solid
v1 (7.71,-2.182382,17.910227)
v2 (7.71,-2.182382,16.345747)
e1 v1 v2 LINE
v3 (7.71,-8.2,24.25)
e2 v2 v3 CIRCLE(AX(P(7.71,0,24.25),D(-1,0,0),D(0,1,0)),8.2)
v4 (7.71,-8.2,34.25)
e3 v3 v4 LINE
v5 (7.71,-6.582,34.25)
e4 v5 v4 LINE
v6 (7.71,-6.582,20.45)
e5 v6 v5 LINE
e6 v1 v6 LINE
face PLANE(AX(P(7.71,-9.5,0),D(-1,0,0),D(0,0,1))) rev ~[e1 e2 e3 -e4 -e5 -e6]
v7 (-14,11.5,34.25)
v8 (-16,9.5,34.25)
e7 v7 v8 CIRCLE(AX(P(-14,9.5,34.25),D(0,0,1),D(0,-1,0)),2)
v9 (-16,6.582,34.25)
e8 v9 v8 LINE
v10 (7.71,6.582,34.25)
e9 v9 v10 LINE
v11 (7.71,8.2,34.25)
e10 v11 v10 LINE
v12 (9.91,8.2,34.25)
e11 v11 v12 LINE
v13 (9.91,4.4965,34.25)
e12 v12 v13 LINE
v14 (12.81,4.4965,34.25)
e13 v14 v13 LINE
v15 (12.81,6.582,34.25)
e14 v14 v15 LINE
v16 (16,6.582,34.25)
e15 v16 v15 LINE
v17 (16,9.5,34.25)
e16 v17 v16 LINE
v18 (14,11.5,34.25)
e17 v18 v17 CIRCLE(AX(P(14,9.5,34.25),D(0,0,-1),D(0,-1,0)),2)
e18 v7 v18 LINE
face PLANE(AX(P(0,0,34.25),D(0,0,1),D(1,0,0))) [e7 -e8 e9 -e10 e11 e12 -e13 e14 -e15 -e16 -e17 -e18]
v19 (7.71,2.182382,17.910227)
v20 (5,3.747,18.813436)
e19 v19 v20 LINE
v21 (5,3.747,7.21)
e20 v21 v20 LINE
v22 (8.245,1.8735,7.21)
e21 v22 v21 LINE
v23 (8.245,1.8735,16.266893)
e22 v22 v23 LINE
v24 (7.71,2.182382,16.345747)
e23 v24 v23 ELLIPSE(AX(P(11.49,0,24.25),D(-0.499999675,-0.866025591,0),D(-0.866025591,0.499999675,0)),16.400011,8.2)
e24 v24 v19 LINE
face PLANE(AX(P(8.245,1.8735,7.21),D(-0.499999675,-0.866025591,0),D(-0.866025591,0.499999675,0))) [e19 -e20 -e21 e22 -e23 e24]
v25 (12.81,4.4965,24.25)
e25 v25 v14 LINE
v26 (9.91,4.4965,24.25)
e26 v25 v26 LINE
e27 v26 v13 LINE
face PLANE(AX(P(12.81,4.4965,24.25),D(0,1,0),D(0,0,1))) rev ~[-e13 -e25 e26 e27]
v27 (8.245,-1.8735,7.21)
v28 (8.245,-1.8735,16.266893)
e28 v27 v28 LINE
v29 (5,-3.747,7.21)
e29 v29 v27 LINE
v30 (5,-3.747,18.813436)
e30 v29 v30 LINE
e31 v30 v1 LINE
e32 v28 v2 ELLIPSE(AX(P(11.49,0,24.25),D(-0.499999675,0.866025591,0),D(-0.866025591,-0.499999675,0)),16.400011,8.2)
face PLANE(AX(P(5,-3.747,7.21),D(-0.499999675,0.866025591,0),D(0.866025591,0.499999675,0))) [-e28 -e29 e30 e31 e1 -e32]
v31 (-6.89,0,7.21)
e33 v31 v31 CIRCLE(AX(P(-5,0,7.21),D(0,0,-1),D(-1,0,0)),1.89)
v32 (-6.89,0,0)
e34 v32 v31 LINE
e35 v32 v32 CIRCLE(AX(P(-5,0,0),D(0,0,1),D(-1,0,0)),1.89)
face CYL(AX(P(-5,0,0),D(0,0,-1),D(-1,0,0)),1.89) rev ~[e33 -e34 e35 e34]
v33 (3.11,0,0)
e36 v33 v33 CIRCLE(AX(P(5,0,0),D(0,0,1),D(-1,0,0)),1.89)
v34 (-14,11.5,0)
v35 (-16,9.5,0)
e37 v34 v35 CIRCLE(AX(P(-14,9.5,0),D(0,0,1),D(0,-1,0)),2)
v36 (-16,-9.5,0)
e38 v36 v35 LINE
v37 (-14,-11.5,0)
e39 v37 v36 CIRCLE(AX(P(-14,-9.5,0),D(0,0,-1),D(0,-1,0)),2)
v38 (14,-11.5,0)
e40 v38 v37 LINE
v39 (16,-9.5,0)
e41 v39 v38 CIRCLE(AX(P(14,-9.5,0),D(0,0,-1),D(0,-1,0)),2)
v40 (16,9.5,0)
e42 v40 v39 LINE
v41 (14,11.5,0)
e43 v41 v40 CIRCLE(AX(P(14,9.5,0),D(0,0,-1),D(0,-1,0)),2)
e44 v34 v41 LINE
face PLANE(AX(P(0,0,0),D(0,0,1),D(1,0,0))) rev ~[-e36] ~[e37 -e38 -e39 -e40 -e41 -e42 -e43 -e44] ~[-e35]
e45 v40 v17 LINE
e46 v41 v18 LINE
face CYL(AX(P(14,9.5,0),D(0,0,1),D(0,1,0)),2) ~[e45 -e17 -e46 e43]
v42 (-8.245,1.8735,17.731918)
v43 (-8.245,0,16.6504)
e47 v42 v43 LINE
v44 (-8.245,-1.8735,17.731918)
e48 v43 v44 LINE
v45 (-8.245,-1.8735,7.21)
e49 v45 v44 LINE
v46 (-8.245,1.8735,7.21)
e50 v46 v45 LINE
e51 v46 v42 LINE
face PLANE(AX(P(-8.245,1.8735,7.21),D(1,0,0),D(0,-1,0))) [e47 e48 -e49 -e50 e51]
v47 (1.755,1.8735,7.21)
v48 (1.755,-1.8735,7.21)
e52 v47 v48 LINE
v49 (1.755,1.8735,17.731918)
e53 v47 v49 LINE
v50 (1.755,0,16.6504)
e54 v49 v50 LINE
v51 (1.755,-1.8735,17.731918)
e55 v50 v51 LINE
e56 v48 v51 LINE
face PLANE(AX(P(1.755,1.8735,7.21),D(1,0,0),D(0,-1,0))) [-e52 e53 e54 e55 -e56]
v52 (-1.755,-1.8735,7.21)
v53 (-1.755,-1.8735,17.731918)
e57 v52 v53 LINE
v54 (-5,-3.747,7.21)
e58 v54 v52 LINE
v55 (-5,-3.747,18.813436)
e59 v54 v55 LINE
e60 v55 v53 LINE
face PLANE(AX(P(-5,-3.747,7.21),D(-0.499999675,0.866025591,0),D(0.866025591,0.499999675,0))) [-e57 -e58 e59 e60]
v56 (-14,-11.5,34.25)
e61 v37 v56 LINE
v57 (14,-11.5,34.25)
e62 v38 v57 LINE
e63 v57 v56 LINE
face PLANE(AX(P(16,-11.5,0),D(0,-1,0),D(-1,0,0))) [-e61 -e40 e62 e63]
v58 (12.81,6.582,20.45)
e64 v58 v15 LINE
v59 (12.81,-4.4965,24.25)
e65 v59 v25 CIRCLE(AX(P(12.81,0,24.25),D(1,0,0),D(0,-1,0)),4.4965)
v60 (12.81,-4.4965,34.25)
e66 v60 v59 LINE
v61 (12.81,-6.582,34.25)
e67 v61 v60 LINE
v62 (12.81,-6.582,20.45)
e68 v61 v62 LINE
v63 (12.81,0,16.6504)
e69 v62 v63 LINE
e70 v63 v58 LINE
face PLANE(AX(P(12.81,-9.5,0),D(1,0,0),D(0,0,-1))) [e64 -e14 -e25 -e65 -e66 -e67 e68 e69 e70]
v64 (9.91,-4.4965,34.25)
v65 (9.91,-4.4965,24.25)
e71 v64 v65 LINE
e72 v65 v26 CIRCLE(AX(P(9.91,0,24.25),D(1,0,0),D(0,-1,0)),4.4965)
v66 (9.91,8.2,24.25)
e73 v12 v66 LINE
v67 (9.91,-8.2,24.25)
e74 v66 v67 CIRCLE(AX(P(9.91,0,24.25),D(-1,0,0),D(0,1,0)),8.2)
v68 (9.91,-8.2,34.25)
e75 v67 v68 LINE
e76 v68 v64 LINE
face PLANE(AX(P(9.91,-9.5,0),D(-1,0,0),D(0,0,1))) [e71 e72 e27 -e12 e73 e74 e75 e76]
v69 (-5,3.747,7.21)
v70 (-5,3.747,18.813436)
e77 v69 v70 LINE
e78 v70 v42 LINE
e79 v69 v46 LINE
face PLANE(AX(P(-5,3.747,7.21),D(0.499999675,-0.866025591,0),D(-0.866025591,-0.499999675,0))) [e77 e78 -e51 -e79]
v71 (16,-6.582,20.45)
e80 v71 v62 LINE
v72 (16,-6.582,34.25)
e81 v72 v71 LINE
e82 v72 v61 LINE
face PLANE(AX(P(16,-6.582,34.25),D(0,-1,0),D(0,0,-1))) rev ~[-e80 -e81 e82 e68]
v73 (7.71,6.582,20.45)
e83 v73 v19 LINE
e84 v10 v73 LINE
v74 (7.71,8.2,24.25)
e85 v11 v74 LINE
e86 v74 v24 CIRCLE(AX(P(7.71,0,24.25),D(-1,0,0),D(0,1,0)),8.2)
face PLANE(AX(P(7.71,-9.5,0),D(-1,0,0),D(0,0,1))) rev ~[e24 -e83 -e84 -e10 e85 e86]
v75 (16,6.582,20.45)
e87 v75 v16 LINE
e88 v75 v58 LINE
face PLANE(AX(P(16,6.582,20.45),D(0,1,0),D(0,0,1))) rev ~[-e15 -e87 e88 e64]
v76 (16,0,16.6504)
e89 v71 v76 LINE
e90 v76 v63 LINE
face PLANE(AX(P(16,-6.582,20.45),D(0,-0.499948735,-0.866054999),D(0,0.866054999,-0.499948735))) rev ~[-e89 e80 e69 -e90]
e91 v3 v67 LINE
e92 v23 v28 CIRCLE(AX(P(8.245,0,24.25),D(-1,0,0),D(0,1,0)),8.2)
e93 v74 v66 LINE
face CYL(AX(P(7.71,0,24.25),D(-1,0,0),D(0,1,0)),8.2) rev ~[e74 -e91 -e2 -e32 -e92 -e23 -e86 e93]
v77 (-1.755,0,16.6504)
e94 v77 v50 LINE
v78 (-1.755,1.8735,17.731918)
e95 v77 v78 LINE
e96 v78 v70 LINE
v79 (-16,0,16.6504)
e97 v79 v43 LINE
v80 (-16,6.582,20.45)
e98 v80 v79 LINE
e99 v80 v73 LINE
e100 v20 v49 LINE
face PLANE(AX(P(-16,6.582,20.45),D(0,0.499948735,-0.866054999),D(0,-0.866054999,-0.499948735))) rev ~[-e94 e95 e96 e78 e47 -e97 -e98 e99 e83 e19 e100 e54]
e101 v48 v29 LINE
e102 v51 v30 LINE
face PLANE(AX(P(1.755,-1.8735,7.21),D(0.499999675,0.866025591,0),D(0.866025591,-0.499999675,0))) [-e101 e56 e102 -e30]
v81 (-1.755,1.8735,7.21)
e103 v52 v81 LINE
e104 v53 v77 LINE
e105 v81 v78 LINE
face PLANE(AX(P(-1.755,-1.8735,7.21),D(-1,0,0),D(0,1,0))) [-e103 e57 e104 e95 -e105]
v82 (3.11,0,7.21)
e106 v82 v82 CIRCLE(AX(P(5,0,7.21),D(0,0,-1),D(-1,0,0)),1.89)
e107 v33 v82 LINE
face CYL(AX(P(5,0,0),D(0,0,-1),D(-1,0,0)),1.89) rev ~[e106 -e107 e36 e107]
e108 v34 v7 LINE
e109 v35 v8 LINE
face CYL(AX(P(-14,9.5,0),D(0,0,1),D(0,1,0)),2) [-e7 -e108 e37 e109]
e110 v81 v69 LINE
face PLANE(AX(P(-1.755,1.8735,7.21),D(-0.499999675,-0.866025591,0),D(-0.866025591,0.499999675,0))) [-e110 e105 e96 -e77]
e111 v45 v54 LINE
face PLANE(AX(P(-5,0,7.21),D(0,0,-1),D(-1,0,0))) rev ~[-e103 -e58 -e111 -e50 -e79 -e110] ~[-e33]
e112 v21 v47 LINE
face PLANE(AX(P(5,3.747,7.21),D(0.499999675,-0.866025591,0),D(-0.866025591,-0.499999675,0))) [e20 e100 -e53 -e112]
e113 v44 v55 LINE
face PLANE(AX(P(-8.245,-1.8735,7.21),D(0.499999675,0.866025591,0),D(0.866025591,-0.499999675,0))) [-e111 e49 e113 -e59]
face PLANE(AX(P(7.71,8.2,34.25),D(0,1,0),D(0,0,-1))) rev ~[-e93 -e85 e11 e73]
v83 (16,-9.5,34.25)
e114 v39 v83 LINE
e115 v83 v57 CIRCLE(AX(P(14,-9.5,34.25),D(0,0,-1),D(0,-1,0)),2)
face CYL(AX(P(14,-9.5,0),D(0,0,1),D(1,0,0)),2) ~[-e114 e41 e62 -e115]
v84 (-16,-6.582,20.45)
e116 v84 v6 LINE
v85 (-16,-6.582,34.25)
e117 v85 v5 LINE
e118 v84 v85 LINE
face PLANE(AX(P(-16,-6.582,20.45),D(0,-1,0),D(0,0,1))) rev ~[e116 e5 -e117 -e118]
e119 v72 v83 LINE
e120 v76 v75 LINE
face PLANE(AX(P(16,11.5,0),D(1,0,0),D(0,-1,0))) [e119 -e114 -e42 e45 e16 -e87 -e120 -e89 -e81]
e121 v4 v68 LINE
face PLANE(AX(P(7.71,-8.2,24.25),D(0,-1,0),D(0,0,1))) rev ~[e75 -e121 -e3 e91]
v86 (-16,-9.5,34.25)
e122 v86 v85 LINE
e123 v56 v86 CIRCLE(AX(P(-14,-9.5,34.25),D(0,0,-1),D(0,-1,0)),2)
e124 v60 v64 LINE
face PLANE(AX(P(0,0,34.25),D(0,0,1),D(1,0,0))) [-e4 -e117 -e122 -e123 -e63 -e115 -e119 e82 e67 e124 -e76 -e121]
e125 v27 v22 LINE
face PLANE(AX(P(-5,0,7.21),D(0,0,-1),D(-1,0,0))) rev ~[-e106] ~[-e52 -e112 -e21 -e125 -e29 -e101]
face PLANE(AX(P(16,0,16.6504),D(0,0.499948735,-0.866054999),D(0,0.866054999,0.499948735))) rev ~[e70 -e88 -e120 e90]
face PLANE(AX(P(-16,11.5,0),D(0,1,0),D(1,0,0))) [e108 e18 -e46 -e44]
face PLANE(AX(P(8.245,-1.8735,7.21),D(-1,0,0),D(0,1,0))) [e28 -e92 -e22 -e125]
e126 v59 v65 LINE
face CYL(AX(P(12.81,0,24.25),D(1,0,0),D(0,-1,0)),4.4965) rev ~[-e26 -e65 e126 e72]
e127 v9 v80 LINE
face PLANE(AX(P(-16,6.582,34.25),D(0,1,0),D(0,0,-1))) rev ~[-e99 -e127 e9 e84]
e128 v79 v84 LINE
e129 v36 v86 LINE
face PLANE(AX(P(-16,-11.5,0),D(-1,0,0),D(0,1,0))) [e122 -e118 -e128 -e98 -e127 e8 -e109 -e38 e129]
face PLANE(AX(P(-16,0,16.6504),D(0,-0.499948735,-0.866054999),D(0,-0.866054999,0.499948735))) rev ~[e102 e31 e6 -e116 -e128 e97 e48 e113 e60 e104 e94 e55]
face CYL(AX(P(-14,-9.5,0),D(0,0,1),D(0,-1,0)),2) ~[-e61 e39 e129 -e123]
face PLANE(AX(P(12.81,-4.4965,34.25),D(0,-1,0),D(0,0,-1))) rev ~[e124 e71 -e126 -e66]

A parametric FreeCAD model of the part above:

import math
import FreeCAD as App
import Part
import Sketcher
Q = App.Units.Quantity


def edges_at(feature, points):
    """Names of the edges that pass closest to the given points."""
    edges = feature.Shape.Edges
    near = lambda p: min(range(len(edges)), key=lambda i: edges[i].distToShape(Part.Vertex(*p))[0])
    return sorted({f"Edge{near(p) + 1}" for p in points})

doc = App.newDocument("Part")
body = doc.addObject("PartDesign::Body", "Body")

# Sketch on XY plane
sketch1 = doc.addObject("Sketcher::SketchObject", "Sketch")
body.addObject(sketch1)
sketch1.AttachmentSupport = (doc.XY_Plane, [""])
sketch1.MapMode = "FlatFace"
sketch1.addGeometry([
    Part.LineSegment(App.Vector(16, 12, 0), App.Vector(-16, 12, 0)),
    Part.LineSegment(App.Vector(-16, 12, 0), App.Vector(-16, -12, 0)),
    Part.LineSegment(App.Vector(-16, -12, 0), App.Vector(16, -12, 0)),
    Part.LineSegment(App.Vector(16, -12, 0), App.Vector(16, 12, 0)),
], False)
sketch1.addConstraint([
    Sketcher.Constraint("Coincident", 0, 2, 1, 1),
    Sketcher.Constraint("Coincident", 1, 2, 2, 1),
    Sketcher.Constraint("Coincident", 2, 2, 3, 1),
    Sketcher.Constraint("Coincident", 3, 2, 0, 1),
    Sketcher.Constraint("Horizontal", 0),
    Sketcher.Constraint("Vertical", 1),
    Sketcher.Constraint("Horizontal", 2),
    Sketcher.Constraint("Vertical", 3),
    Sketcher.Constraint("Symmetric", 0, 2, 2, 2, -1, 1),
    Sketcher.Constraint("DistanceX", 0, 2, 0, 1, 32.0),
    Sketcher.Constraint("DistanceY", 1, 2, 1, 1, 23.0),
])
pad1 = doc.addObject("PartDesign::Pad", "Pad")
body.addObject(pad1)
pad1.Profile = sketch1
pad1.Length = 34.25
doc.recompute()

fillet = doc.addObject("PartDesign::Fillet", "Fillet")
body.addObject(fillet)
fillet.Base = (pad1, edges_at(pad1, [
    (16, -11.5, 17.125),
    (16, 11.5, 17.125),
    (-16, 11.5, 17.125),
    (-16, -11.5, 17.125),
]))
fillet.Radius = 2

# Sketch on YZ plane
sketch2 = doc.addObject("Sketcher::SketchObject", "Sketch001")
body.addObject(sketch2)
sketch2.AttachmentSupport = (doc.YZ_Plane, [""])
sketch2.MapMode = "FlatFace"
sketch2.AttachmentOffset = App.Placement(App.Vector(0, 0, 16), App.Rotation())
sketch2.addGeometry([
    Part.LineSegment(App.Vector(7, 34, 0), App.Vector(-7, 34, 0)),  # 0
    Part.LineSegment(App.Vector(-7, 34, 0), App.Vector(-7, 20, 0)),  # 1
    Part.LineSegment(App.Vector(-7, 20, 0), App.Vector(0, 17, 0)),  # 2
    Part.LineSegment(App.Vector(0, 17, 0), App.Vector(7, 20, 0)),  # 3
    Part.LineSegment(App.Vector(7, 20, 0), App.Vector(7, 34, 0)),  # 4
], False)
sketch2.addConstraint([
    Sketcher.Constraint("Coincident", 0, 2, 1, 1),
    Sketcher.Constraint("Coincident", 1, 2, 2, 1),
    Sketcher.Constraint("Coincident", 2, 2, 3, 1),
    Sketcher.Constraint("Coincident", 3, 2, 4, 1),
    Sketcher.Constraint("Coincident", 4, 2, 0, 1),
    Sketcher.Constraint("Horizontal", 0),
    Sketcher.Constraint("Vertical", 1),
    Sketcher.Constraint("Vertical", 4),
    Sketcher.Constraint("Symmetric", 1, 2, 3, 2, -2),
    Sketcher.Constraint("PointOnObject", 2, 2, -2),
    Sketcher.Constraint("DistanceY", 1, 2, 1, 1, 13.8),
    Sketcher.Constraint("Distance", 2, 7.6),
    Sketcher.Constraint("DistanceX", 0, 2, 0, 1, 13.164),
    Sketcher.Constraint("DistanceY", -1, 1, 0, 2, 34.25),
])
pocket1 = doc.addObject("PartDesign::Pocket", "Pocket")
body.addObject(pocket1)
pocket1.Profile = sketch2
pocket1.Length = 3.19

# Sketch on YZ plane
sketch3 = doc.addObject("Sketcher::SketchObject", "Sketch002")
body.addObject(sketch3)
sketch3.AttachmentSupport = (doc.YZ_Plane, [""])
sketch3.MapMode = "FlatFace"
sketch3.AttachmentOffset = App.Placement(App.Vector(0, 0, 12.81), App.Rotation())
sketch3.addGeometry([
    Part.LineSegment(App.Vector(4.5, 34.2, 0), App.Vector(-4.5, 34.2, 0)),
    Part.LineSegment(App.Vector(-4.5, 34.2, 0), App.Vector(-4.5, 24.2, 0)),
    Part.ArcOfCircle(Part.Circle(App.Vector(0, 24.2, 0), App.Vector(0, 0, 1), 4.5), math.radians(180), math.radians(360)),
    Part.LineSegment(App.Vector(4.5, 24.2, 0), App.Vector(4.5, 34.2, 0)),
], False)
sketch3.addConstraint([
    Sketcher.Constraint("Coincident", 0, 2, 1, 1),
    Sketcher.Constraint("Tangent", 1, 2, 2, 1),
    Sketcher.Constraint("Tangent", 2, 2, 3, 1),
    Sketcher.Constraint("Coincident", 3, 2, 0, 1),
    Sketcher.Constraint("Horizontal", 0),
    Sketcher.Constraint("Vertical", 1),
    Sketcher.Constraint("Vertical", 3),
    Sketcher.Constraint("PointOnObject", 2, 3, -2),
    Sketcher.Constraint("DistanceY", 1, 2, 1, 1, 10.0),
    Sketcher.Constraint("Radius", 2, 4.4965),
    Sketcher.Constraint("DistanceY", -1, 1, 2, 3, 24.25),
])
pocket2 = doc.addObject("PartDesign::Pocket", "Pocket001")
body.addObject(pocket2)
pocket2.Profile = sketch3
pocket2.Length = 2.9

# Sketch on YZ plane
sketch4 = doc.addObject("Sketcher::SketchObject", "Sketch003")
body.addObject(sketch4)
sketch4.AttachmentSupport = (doc.YZ_Plane, [""])
sketch4.MapMode = "FlatFace"
sketch4.AttachmentOffset = App.Placement(App.Vector(0, 0, -16), App.Rotation())
sketch4.addGeometry([
    Part.LineSegment(App.Vector(-7, 34, 0), App.Vector(7, 34, 0)),  # 0
    Part.LineSegment(App.Vector(7, 34, 0), App.Vector(7, 20, 0)),  # 1
    Part.LineSegment(App.Vector(7, 20, 0), App.Vector(0, 17, 0)),  # 2
    Part.LineSegment(App.Vector(0, 17, 0), App.Vector(-7, 20, 0)),  # 3
    Part.LineSegment(App.Vector(-7, 20, 0), App.Vector(-7, 34, 0)),  # 4
], False)
sketch4.addConstraint([
    Sketcher.Constraint("Coincident", 0, 2, 1, 1),
    Sketcher.Constraint("Coincident", 1, 2, 2, 1),
    Sketcher.Constraint("Coincident", 2, 2, 3, 1),
    Sketcher.Constraint("Coincident", 3, 2, 4, 1),
    Sketcher.Constraint("Coincident", 4, 2, 0, 1),
    Sketcher.Constraint("Horizontal", 0),
    Sketcher.Constraint("Vertical", 1),
    Sketcher.Constraint("Vertical", 4),
    Sketcher.Constraint("Symmetric", 1, 2, 3, 2, -2),
    Sketcher.Constraint("PointOnObject", 2, 2, -2),
    Sketcher.Constraint("DistanceY", 1, 2, 1, 1, 13.8),
    Sketcher.Constraint("Distance", 2, 7.6),
    Sketcher.Constraint("DistanceX", 0, 1, 0, 2, 13.164),
    Sketcher.Constraint("DistanceY", -1, 1, 0, 2, 34.25),
])
pocket3 = doc.addObject("PartDesign::Pocket", "Pocket002")
body.addObject(pocket3)
pocket3.Profile = sketch4
pocket3.Length = 23.71
pocket3.Reversed = True

# Sketch on YZ plane
sketch5 = doc.addObject("Sketcher::SketchObject", "Sketch004")
body.addObject(sketch5)
sketch5.AttachmentSupport = (doc.YZ_Plane, [""])
sketch5.MapMode = "FlatFace"
sketch5.AttachmentOffset = App.Placement(App.Vector(0, 0, 7.71), App.Rotation())
sketch5.addGeometry([
    Part.LineSegment(App.Vector(-8, 34, 0), App.Vector(8, 34, 0)),
    Part.LineSegment(App.Vector(8, 34, 0), App.Vector(8, 24, 0)),
    Part.ArcOfCircle(Part.Circle(App.Vector(0, 24, 0), App.Vector(0, 0, 1), 8), math.radians(180), math.radians(360)),
    Part.LineSegment(App.Vector(-8, 24, 0), App.Vector(-8, 34, 0)),
], False)
sketch5.addConstraint([
    Sketcher.Constraint("Coincident", 0, 2, 1, 1),
    Sketcher.Constraint("Tangent", 1, 2, 2, 2),
    Sketcher.Constraint("Tangent", 2, 1, 3, 1),
    Sketcher.Constraint("Coincident", 3, 2, 0, 1),
    Sketcher.Constraint("Horizontal", 0),
    Sketcher.Constraint("Vertical", 1),
    Sketcher.Constraint("Vertical", 3),
    Sketcher.Constraint("PointOnObject", 2, 3, -2),
    Sketcher.Constraint("Radius", 2, 8.2),
    Sketcher.Constraint("DistanceY", 1, 2, 1, 1, 10.0),
    Sketcher.Constraint("DistanceY", -1, 1, 2, 3, 24.25),
])
pocket4 = doc.addObject("PartDesign::Pocket", "Pocket003")
body.addObject(pocket4)
pocket4.Profile = sketch5
pocket4.Length = 2.2
pocket4.Reversed = True

# Sketch on XY plane
sketch6 = doc.addObject("Sketcher::SketchObject", "Sketch005")
body.addObject(sketch6)
sketch6.AttachmentSupport = (doc.XY_Plane, [""])
sketch6.MapMode = "FlatFace"
sketch6.addGeometry([
    Part.Circle(App.Vector(-5, 0, 0), App.Vector(0, 0, 1), 1.9),
    Part.Circle(App.Vector(5, 0, 0), App.Vector(0, 0, 1), 1.9),
], False)
sketch6.addConstraint([
    Sketcher.Constraint("Equal", 0, 1),
    Sketcher.Constraint("Symmetric", 0, 3, 1, 3, -1, 1),
    Sketcher.Constraint("PointOnObject", 0, 3, -1),
    Sketcher.Constraint("Diameter", 0, 3.78),
    Sketcher.Constraint("DistanceX", 0, 3, 1, 3, 10.0),
])
pocket5 = doc.addObject("PartDesign::Pocket", "Pocket004")
body.addObject(pocket5)
pocket5.Profile = sketch6
pocket5.Length = 7.21
pocket5.Reversed = True

# Sketch on XY plane
sketch7 = doc.addObject("Sketcher::SketchObject", "Sketch006")
body.addObject(sketch7)
sketch7.AttachmentSupport = (doc.XY_Plane, [""])
sketch7.MapMode = "FlatFace"
sketch7.AttachmentOffset = App.Placement(App.Vector(0, 0, 7.21), App.Rotation())
sketch7.addGeometry([
    Part.LineSegment(App.Vector(-5, -3.7, 0), App.Vector(-8.2, -1.9, 0)),  # 0
    Part.LineSegment(App.Vector(-8.2, -1.9, 0), App.Vector(-8.2, 1.9, 0)),  # 1
    Part.LineSegment(App.Vector(-8.2, 1.9, 0), App.Vector(-5, 3.7, 0)),  # 2
    Part.LineSegment(App.Vector(-5, 3.7, 0), App.Vector(-1.8, 1.9, 0)),  # 3
    Part.LineSegment(App.Vector(-1.8, 1.9, 0), App.Vector(-1.8, -1.9, 0)),  # 4
    Part.LineSegment(App.Vector(-1.8, -1.9, 0), App.Vector(-5, -3.7, 0)),  # 5
    Part.LineSegment(App.Vector(5, -3.7, 0), App.Vector(1.8, -1.9, 0)),  # 6
    Part.LineSegment(App.Vector(1.8, -1.9, 0), App.Vector(1.8, 1.9, 0)),  # 7
    Part.LineSegment(App.Vector(1.8, 1.9, 0), App.Vector(5, 3.7, 0)),  # 8
    Part.LineSegment(App.Vector(5, 3.7, 0), App.Vector(8.2, 1.9, 0)),  # 9
    Part.LineSegment(App.Vector(8.2, 1.9, 0), App.Vector(8.2, -1.9, 0)),  # 10
    Part.LineSegment(App.Vector(8.2, -1.9, 0), App.Vector(5, -3.7, 0)),  # 11
], False)
sketch7.addConstraint([
    Sketcher.Constraint("Coincident", 0, 2, 1, 1),
    Sketcher.Constraint("Coincident", 1, 2, 2, 1),
    Sketcher.Constraint("Coincident", 2, 2, 3, 1),
    Sketcher.Constraint("Coincident", 3, 2, 4, 1),
    Sketcher.Constraint("Coincident", 4, 2, 5, 1),
    Sketcher.Constraint("Coincident", 5, 2, 0, 1),
    Sketcher.Constraint("Coincident", 6, 2, 7, 1),
    Sketcher.Constraint("Coincident", 7, 2, 8, 1),
    Sketcher.Constraint("Coincident", 8, 2, 9, 1),
    Sketcher.Constraint("Coincident", 9, 2, 10, 1),
    Sketcher.Constraint("Coincident", 10, 2, 11, 1),
    Sketcher.Constraint("Coincident", 11, 2, 6, 1),
    Sketcher.Constraint("Vertical", 1),
    Sketcher.Constraint("Vertical", 4),
    Sketcher.Constraint("Vertical", 7),
    Sketcher.Constraint("Vertical", 10),
    Sketcher.Constraint("Symmetric", 3, 2, 6, 2, -1, 1),
    Sketcher.Constraint("Symmetric", 5, 2, 8, 2, -1, 1),
    Sketcher.Constraint("Symmetric", 0, 2, 9, 2, -1, 1),
    Sketcher.Constraint("Symmetric", 2, 2, 11, 2, -1, 1),
    Sketcher.Constraint("Symmetric", 2, 2, 8, 2, -2),
    Sketcher.Constraint("Parallel", 0, 3),
    Sketcher.Constraint("Parallel", 2, 5),
    Sketcher.Constraint("Parallel", 5, 8),
    Sketcher.Constraint("Parallel", 8, 11),
    Sketcher.Constraint("Horizontal", 1, 2, 3, 2),
    Sketcher.Constraint("Horizontal", 0, 2, 4, 2),
    Sketcher.Constraint("DistanceY", 1, 1, 1, 2, 3.747),
    Sketcher.Constraint("Angle", 0, Q("150 deg")),
    Sketcher.Constraint("Distance", 0, 3.747),
    Sketcher.Constraint("DistanceX", 2, 2, -1, 1, 5.0),
])
pocket6 = doc.addObject("PartDesign::Pocket", "Pocket005")
body.addObject(pocket6)
pocket6.Profile = sketch7
pocket6.Type = "ThroughAll"
pocket6.Reversed = True

doc.recompute()
